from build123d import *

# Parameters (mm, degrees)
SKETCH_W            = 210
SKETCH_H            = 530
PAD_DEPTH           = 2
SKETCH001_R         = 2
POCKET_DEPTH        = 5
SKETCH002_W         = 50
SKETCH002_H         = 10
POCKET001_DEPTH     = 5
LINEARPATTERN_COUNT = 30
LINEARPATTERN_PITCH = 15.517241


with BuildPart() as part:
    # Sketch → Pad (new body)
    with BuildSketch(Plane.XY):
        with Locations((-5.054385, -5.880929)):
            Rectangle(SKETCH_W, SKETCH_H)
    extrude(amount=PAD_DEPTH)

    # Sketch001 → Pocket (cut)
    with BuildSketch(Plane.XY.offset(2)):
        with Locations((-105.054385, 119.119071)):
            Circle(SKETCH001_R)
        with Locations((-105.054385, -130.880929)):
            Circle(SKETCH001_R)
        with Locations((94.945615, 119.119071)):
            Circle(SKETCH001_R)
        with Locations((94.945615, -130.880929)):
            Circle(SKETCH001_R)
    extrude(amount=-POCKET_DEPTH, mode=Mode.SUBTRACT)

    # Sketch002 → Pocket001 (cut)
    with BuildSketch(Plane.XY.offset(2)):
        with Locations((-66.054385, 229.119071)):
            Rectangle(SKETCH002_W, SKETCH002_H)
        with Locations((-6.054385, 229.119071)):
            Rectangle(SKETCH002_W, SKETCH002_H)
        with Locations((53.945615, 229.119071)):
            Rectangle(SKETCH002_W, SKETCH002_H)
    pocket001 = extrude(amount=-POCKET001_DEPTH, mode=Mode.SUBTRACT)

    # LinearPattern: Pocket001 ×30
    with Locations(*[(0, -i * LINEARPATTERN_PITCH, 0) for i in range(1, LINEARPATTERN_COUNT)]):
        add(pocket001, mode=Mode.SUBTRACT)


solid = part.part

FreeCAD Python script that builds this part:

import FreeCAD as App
import Part
import Sketcher
from FreeCAD import Vector


def add_polygon(sketch, points):
    """Adds a closed chain of lines whose ends are joined by coincident constraints."""
    first, n = sketch.GeometryCount, len(points)
    for a, b in zip(points, points[1:] + points[:1]):
        sketch.addGeometry(Part.LineSegment(App.Vector(*a, 0), App.Vector(*b, 0)), False)
    for i in range(n):
        sketch.addConstraint(Sketcher.Constraint("Coincident", first + i, 2, first + (i + 1) % n, 1))

doc = App.newDocument("Part")
params = doc.addObject("Spreadsheet::Sheet", "Params")
for row, (alias, value) in enumerate([
    ("sketch1_width", "210 mm"),
    ("sketch1_height", "530 mm"),
    ("pad1_length", "2 mm"),
    ("sketch2_diameter", "4 mm"),
    ("pocket1_length", "5 mm"),
    ("sketch3_width", "50 mm"),
    ("sketch3_height", "10 mm"),
    ("pocket2_length", "5 mm"),
    ("linearpattern_pitch", "15.517241 mm"),
], start=1):
    params.set(f"A{row}", alias)
    params.set(f"B{row}", "=" + value)
    params.setAlias(f"B{row}", alias)

body = doc.addObject("PartDesign::Body", "Body")

sketch1 = body.newObject("Sketcher::SketchObject", "Sketch")
sketch1.AttachmentSupport = (doc.getObject("XY_Plane"), [""])
sketch1.MapMode = "FlatFace"
add_polygon(sketch1, [(-110.054385, 259.119071), (-110.054385, -270.880929), (99.945615, -270.880929), (99.945615, 259.119071)])
sketch1.addConstraint(Sketcher.Constraint("Vertical", 0))
sketch1.addConstraint(Sketcher.Constraint("Horizontal", 1))
sketch1.addConstraint(Sketcher.Constraint("Vertical", 2))
sketch1.addConstraint(Sketcher.Constraint("Horizontal", 3))
sketch1.addConstraint(Sketcher.Constraint("DistanceX", 1, 1, 1, 2, 210.0))
sketch1.addConstraint(Sketcher.Constraint("DistanceY", 0, 2, 0, 1, 530.0))
sketch1.addConstraint(Sketcher.Constraint("DistanceY", 0, 2, -1, 1, 270.880929))
sketch1.addConstraint(Sketcher.Constraint("DistanceX", 0, 2, -1, 1, 110.054385))
sketch1.setExpression("Constraints[8]", "Params.sketch1_width")
sketch1.setExpression("Constraints[9]", "Params.sketch1_height")
pad1 = body.newObject("PartDesign::Pad", "Pad")
pad1.Profile = sketch1
pad1.setExpression("Length", "Params.pad1_length")

sketch2 = body.newObject("Sketcher::SketchObject", "Sketch001")
sketch2.AttachmentSupport = (doc.getObject("XY_Plane"), [""])
sketch2.MapMode = "FlatFace"
sketch2.AttachmentOffset = App.Placement(Vector(0, 0, 2), App.Rotation())
sketch2.addGeometry(Part.Circle(Vector(-105.054385, 119.119071, 0), Vector(0, 0, 1), 2), False)
sketch2.addGeometry(Part.Circle(Vector(-105.054385, -130.880929, 0), Vector(0, 0, 1), 2), False)
sketch2.addGeometry(Part.Circle(Vector(94.945615, 119.119071, 0), Vector(0, 0, 1), 2), False)
sketch2.addGeometry(Part.Circle(Vector(94.945615, -130.880929, 0), Vector(0, 0, 1), 2), False)
sketch2.addConstraint(Sketcher.Constraint("Equal", 0, 1))
sketch2.addConstraint(Sketcher.Constraint("Equal", 1, 2))
sketch2.addConstraint(Sketcher.Constraint("Equal", 2, 3))
sketch2.addConstraint(Sketcher.Constraint("Horizontal", 0, 3, 2, 3))
sketch2.addConstraint(Sketcher.Constraint("Horizontal", 1, 3, 3, 3))
sketch2.addConstraint(Sketcher.Constraint("Vertical", 0, 3, 1, 3))
sketch2.addConstraint(Sketcher.Constraint("Vertical", 2, 3, 3, 3))
sketch2.addConstraint(Sketcher.Constraint("Diameter", 0, 4.0))
sketch2.addConstraint(Sketcher.Constraint("DistanceY", 1, 3, 0, 3, 250.0))
sketch2.addConstraint(Sketcher.Constraint("DistanceX", 0, 3, 2, 3, 200.0))
sketch2.addConstraint(Sketcher.Constraint("DistanceY", -1, 1, 0, 3, 119.119071))
sketch2.addConstraint(Sketcher.Constraint("DistanceX", 0, 3, -1, 1, 105.054385))
sketch2.setExpression("Constraints[7]", "Params.sketch2_diameter")
pocket1 = body.newObject("PartDesign::Pocket", "Pocket")
pocket1.Profile = sketch2
pocket1.setExpression("Length", "Params.pocket1_length")

sketch3 = body.newObject("Sketcher::SketchObject", "Sketch002")
sketch3.AttachmentSupport = (doc.getObject("XY_Plane"), [""])
sketch3.MapMode = "FlatFace"
sketch3.AttachmentOffset = App.Placement(Vector(0, 0, 2), App.Rotation())
add_polygon(sketch3, [(-91.054385, 234.119071), (-91.054385, 224.119071), (-41.054385, 224.119071), (-41.054385, 234.119071)])
add_polygon(sketch3, [(-31.054385, 234.119071), (-31.054385, 224.119071), (18.945615, 224.119071), (18.945615, 234.119071)])
add_polygon(sketch3, [(28.945615, 234.119071), (28.945615, 224.119071), (78.945615, 224.119071), (78.945615, 234.119071)])
sketch3.addConstraint(Sketcher.Constraint("Vertical", 0))
sketch3.addConstraint(Sketcher.Constraint("Horizontal", 1))
sketch3.addConstraint(Sketcher.Constraint("Vertical", 2))
sketch3.addConstraint(Sketcher.Constraint("Horizontal", 3))
sketch3.addConstraint(Sketcher.Constraint("Vertical", 4))
sketch3.addConstraint(Sketcher.Constraint("Horizontal", 5))
sketch3.addConstraint(Sketcher.Constraint("Vertical", 6))
sketch3.addConstraint(Sketcher.Constraint("Horizontal", 7))
sketch3.addConstraint(Sketcher.Constraint("Vertical", 8))
sketch3.addConstraint(Sketcher.Constraint("Horizontal", 9))
sketch3.addConstraint(Sketcher.Constraint("Vertical", 10))
sketch3.addConstraint(Sketcher.Constraint("Horizontal", 11))
sketch3.addConstraint(Sketcher.Constraint("Horizontal", 1, 2, 4, 2))
sketch3.addConstraint(Sketcher.Constraint("Horizontal", 3, 2, 6, 2))
sketch3.addConstraint(Sketcher.Constraint("Horizontal", 5, 2, 8, 2))
sketch3.addConstraint(Sketcher.Constraint("Horizontal", 7, 2, 10, 2))
sketch3.addConstraint(Sketcher.Constraint("Equal", 3, 5))
sketch3.addConstraint(Sketcher.Constraint("Equal", 7, 9))
sketch3.addConstraint(Sketcher.Constraint("DistanceX", 1, 1, 1, 2, 50.0))
sketch3.addConstraint(Sketcher.Constraint("DistanceY", 0, 2, 0, 1, 10.0))
sketch3.addConstraint(Sketcher.Constraint("DistanceX", 1, 2, 4, 2, 10.0))
sketch3.addConstraint(Sketcher.Constraint("DistanceX", 5, 2, 8, 2, 10.0))
sketch3.addConstraint(Sketcher.Constraint("DistanceY", -1, 1, 0, 2, 224.119071))
sketch3.addConstraint(Sketcher.Constraint("DistanceX", 0, 2, -1, 1, 91.054385))
sketch3.setExpression("Constraints[30]", "Params.sketch3_width")
sketch3.setExpression("Constraints[31]", "Params.sketch3_height")
pocket2 = body.newObject("PartDesign::Pocket", "Pocket001")
pocket2.Profile = sketch3
pocket2.setExpression("Length", "Params.pocket2_length")
doc.recompute()

linearpattern = body.newObject("PartDesign::LinearPattern", "LinearPattern")
linearpattern.Originals = [pocket2]
linearpattern.Direction = (doc.getObject("Y_Axis"), [""])
linearpattern.Mode = "offset"
linearpattern.setExpression("Offset", "Params.linearpattern_pitch")
linearpattern.Occurrences = 30
linearpattern.Reversed = True
body.Tip = linearpattern

doc.recompute()
